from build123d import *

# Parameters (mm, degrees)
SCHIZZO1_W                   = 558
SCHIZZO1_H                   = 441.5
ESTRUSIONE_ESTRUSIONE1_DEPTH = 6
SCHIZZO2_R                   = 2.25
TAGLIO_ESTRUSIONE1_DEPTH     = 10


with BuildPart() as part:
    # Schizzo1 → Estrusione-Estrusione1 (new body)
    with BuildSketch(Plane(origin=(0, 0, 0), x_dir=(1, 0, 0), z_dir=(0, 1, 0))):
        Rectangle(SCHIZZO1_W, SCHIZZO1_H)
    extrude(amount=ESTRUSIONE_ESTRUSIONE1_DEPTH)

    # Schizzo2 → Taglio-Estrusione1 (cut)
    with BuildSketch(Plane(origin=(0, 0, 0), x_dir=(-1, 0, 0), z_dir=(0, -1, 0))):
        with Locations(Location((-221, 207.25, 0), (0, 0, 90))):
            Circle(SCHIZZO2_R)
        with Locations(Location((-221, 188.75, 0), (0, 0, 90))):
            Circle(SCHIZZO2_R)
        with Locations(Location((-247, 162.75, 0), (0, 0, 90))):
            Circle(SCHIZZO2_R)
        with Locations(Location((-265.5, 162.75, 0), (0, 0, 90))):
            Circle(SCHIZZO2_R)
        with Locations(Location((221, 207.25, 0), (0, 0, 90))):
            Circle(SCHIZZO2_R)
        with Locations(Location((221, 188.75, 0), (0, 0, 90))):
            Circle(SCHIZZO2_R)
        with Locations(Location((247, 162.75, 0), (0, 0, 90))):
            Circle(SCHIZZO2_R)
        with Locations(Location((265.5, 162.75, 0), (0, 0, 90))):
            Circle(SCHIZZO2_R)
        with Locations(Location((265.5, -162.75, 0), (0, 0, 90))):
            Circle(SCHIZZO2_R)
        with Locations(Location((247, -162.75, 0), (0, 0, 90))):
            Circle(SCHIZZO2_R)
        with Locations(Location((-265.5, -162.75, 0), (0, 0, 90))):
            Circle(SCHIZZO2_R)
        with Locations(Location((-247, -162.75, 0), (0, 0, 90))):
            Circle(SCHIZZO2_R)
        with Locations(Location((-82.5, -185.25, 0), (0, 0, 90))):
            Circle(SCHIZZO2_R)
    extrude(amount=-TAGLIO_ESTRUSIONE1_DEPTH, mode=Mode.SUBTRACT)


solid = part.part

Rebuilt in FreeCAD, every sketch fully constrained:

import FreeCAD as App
import Part
import Sketcher
from FreeCAD import Vector
Q = App.Units.Quantity

doc = App.newDocument("Part")
body = doc.addObject("PartDesign::Body", "Body")

sketch1 = body.newObject("Sketcher::SketchObject", "Sketch")
sketch1.AttachmentSupport = (doc.getObject("XZ_Plane"), [""])
sketch1.MapMode = "FlatFace"
sketch1.addGeometry([
    Part.LineSegment(Vector(-279, -221, 0), Vector(-279, 221, 0)),
    Part.LineSegment(Vector(-279, 221, 0), Vector(279, 221, 0)),
    Part.LineSegment(Vector(279, 221, 0), Vector(279, -221, 0)),
    Part.LineSegment(Vector(279, -221, 0), Vector(-279, -221, 0)),
], False)
sketch1.addConstraint([
    Sketcher.Constraint("Coincident", 0, 2, 1, 1),
    Sketcher.Constraint("Coincident", 1, 2, 2, 1),
    Sketcher.Constraint("Coincident", 2, 2, 3, 1),
    Sketcher.Constraint("Coincident", 3, 2, 0, 1),
    Sketcher.Constraint("Vertical", 0),
    Sketcher.Constraint("Horizontal", 1),
    Sketcher.Constraint("Vertical", 2),
    Sketcher.Constraint("Horizontal", 3),
    Sketcher.Constraint("Symmetric", 0, 2, 2, 2, -1, 1),
    Sketcher.Constraint("DistanceX", 1, 1, 1, 2, Q("558 mm")),
    Sketcher.Constraint("DistanceY", 0, 1, 0, 2, Q("441.5 mm")),
])
pad1 = body.newObject("PartDesign::Pad", "Pad")
pad1.Profile = sketch1
pad1.Length = 6
pad1.Reversed = True

sketch2 = body.newObject("Sketcher::SketchObject", "Sketch001")
sketch2.AttachmentSupport = (doc.getObject("XZ_Plane"), [""])
sketch2.MapMode = "FlatFace"
sketch2.addGeometry([
    Part.Circle(Vector(221, -207.2, 0), Vector(0, 0, 1), 2.2),
    Part.Circle(Vector(221, -188.8, 0), Vector(0, 0, 1), 2.2),
    Part.Circle(Vector(247, -162.8, 0), Vector(0, 0, 1), 2.2),
    Part.Circle(Vector(265.5, -162.8, 0), Vector(0, 0, 1), 2.2),
    Part.Circle(Vector(-221, -207.2, 0), Vector(0, 0, 1), 2.2),
    Part.Circle(Vector(-221, -188.8, 0), Vector(0, 0, 1), 2.2),
    Part.Circle(Vector(-247, -162.8, 0), Vector(0, 0, 1), 2.2),
    Part.Circle(Vector(-265.5, -162.8, 0), Vector(0, 0, 1), 2.2),
    Part.Circle(Vector(-265.5, 162.8, 0), Vector(0, 0, 1), 2.2),
    Part.Circle(Vector(-247, 162.8, 0), Vector(0, 0, 1), 2.2),
    Part.Circle(Vector(265.5, 162.8, 0), Vector(0, 0, 1), 2.2),
    Part.Circle(Vector(247, 162.8, 0), Vector(0, 0, 1), 2.2),
    Part.Circle(Vector(82.5, 185.2, 0), Vector(0, 0, 1), 2.2),
], False)
sketch2.addConstraint([
    Sketcher.Constraint("Equal", 0, 1),
    Sketcher.Constraint("Equal", 1, 2),
    Sketcher.Constraint("Equal", 2, 3),
    Sketcher.Constraint("Equal", 3, 4),
    Sketcher.Constraint("Equal", 4, 5),
    Sketcher.Constraint("Equal", 5, 6),
    Sketcher.Constraint("Equal", 6, 7),
    Sketcher.Constraint("Equal", 7, 8),
    Sketcher.Constraint("Equal", 8, 9),
    Sketcher.Constraint("Equal", 9, 10),
    Sketcher.Constraint("Equal", 10, 11),
    Sketcher.Constraint("Equal", 11, 12),
    Sketcher.Constraint("Symmetric", 3, 3, 8, 3, -1, 1),
    Sketcher.Constraint("Symmetric", 2, 3, 9, 3, -1, 1),
    Sketcher.Constraint("Symmetric", 7, 3, 10, 3, -1, 1),
    Sketcher.Constraint("Symmetric", 6, 3, 11, 3, -1, 1),
    Sketcher.Constraint("Symmetric", 0, 3, 4, 3, -2),
    Sketcher.Constraint("Symmetric", 1, 3, 5, 3, -2),
    Sketcher.Constraint("Symmetric", 2, 3, 6, 3, -2),
    Sketcher.Constraint("Symmetric", 3, 3, 7, 3, -2),
    Sketcher.Constraint("Horizontal", 2, 3, 3, 3),
    Sketcher.Constraint("Vertical", 0, 3, 1, 3),
    Sketcher.Constraint("Diameter", 0, Q("4.5 mm")),
    Sketcher.Constraint("DistanceX", -1, 1, 0, 3, Q("221 mm")),
    Sketcher.Constraint("DistanceX", -1, 1, 2, 3, Q("247 mm")),
    Sketcher.Constraint("DistanceY", 1, 3, 2, 3, Q("26 mm")),
    Sketcher.Constraint("DistanceY", 4, 3, 8, 3, Q("370 mm")),
    Sketcher.Constraint("DistanceX", 12, 3, 10, 3, Q("183 mm")),
    Sketcher.Constraint("DistanceX", 8, 3, 12, 3, Q("348 mm")),
    Sketcher.Constraint("DistanceY", 2, 3, 12, 3, Q("348 mm")),
    Sketcher.Constraint("DistanceY", 0, 3, 1, 3, Q("18.5 mm")),
])
pocket1 = body.newObject("PartDesign::Pocket", "Pocket")
pocket1.Profile = sketch2
pocket1.Length = 10

doc.recompute()
